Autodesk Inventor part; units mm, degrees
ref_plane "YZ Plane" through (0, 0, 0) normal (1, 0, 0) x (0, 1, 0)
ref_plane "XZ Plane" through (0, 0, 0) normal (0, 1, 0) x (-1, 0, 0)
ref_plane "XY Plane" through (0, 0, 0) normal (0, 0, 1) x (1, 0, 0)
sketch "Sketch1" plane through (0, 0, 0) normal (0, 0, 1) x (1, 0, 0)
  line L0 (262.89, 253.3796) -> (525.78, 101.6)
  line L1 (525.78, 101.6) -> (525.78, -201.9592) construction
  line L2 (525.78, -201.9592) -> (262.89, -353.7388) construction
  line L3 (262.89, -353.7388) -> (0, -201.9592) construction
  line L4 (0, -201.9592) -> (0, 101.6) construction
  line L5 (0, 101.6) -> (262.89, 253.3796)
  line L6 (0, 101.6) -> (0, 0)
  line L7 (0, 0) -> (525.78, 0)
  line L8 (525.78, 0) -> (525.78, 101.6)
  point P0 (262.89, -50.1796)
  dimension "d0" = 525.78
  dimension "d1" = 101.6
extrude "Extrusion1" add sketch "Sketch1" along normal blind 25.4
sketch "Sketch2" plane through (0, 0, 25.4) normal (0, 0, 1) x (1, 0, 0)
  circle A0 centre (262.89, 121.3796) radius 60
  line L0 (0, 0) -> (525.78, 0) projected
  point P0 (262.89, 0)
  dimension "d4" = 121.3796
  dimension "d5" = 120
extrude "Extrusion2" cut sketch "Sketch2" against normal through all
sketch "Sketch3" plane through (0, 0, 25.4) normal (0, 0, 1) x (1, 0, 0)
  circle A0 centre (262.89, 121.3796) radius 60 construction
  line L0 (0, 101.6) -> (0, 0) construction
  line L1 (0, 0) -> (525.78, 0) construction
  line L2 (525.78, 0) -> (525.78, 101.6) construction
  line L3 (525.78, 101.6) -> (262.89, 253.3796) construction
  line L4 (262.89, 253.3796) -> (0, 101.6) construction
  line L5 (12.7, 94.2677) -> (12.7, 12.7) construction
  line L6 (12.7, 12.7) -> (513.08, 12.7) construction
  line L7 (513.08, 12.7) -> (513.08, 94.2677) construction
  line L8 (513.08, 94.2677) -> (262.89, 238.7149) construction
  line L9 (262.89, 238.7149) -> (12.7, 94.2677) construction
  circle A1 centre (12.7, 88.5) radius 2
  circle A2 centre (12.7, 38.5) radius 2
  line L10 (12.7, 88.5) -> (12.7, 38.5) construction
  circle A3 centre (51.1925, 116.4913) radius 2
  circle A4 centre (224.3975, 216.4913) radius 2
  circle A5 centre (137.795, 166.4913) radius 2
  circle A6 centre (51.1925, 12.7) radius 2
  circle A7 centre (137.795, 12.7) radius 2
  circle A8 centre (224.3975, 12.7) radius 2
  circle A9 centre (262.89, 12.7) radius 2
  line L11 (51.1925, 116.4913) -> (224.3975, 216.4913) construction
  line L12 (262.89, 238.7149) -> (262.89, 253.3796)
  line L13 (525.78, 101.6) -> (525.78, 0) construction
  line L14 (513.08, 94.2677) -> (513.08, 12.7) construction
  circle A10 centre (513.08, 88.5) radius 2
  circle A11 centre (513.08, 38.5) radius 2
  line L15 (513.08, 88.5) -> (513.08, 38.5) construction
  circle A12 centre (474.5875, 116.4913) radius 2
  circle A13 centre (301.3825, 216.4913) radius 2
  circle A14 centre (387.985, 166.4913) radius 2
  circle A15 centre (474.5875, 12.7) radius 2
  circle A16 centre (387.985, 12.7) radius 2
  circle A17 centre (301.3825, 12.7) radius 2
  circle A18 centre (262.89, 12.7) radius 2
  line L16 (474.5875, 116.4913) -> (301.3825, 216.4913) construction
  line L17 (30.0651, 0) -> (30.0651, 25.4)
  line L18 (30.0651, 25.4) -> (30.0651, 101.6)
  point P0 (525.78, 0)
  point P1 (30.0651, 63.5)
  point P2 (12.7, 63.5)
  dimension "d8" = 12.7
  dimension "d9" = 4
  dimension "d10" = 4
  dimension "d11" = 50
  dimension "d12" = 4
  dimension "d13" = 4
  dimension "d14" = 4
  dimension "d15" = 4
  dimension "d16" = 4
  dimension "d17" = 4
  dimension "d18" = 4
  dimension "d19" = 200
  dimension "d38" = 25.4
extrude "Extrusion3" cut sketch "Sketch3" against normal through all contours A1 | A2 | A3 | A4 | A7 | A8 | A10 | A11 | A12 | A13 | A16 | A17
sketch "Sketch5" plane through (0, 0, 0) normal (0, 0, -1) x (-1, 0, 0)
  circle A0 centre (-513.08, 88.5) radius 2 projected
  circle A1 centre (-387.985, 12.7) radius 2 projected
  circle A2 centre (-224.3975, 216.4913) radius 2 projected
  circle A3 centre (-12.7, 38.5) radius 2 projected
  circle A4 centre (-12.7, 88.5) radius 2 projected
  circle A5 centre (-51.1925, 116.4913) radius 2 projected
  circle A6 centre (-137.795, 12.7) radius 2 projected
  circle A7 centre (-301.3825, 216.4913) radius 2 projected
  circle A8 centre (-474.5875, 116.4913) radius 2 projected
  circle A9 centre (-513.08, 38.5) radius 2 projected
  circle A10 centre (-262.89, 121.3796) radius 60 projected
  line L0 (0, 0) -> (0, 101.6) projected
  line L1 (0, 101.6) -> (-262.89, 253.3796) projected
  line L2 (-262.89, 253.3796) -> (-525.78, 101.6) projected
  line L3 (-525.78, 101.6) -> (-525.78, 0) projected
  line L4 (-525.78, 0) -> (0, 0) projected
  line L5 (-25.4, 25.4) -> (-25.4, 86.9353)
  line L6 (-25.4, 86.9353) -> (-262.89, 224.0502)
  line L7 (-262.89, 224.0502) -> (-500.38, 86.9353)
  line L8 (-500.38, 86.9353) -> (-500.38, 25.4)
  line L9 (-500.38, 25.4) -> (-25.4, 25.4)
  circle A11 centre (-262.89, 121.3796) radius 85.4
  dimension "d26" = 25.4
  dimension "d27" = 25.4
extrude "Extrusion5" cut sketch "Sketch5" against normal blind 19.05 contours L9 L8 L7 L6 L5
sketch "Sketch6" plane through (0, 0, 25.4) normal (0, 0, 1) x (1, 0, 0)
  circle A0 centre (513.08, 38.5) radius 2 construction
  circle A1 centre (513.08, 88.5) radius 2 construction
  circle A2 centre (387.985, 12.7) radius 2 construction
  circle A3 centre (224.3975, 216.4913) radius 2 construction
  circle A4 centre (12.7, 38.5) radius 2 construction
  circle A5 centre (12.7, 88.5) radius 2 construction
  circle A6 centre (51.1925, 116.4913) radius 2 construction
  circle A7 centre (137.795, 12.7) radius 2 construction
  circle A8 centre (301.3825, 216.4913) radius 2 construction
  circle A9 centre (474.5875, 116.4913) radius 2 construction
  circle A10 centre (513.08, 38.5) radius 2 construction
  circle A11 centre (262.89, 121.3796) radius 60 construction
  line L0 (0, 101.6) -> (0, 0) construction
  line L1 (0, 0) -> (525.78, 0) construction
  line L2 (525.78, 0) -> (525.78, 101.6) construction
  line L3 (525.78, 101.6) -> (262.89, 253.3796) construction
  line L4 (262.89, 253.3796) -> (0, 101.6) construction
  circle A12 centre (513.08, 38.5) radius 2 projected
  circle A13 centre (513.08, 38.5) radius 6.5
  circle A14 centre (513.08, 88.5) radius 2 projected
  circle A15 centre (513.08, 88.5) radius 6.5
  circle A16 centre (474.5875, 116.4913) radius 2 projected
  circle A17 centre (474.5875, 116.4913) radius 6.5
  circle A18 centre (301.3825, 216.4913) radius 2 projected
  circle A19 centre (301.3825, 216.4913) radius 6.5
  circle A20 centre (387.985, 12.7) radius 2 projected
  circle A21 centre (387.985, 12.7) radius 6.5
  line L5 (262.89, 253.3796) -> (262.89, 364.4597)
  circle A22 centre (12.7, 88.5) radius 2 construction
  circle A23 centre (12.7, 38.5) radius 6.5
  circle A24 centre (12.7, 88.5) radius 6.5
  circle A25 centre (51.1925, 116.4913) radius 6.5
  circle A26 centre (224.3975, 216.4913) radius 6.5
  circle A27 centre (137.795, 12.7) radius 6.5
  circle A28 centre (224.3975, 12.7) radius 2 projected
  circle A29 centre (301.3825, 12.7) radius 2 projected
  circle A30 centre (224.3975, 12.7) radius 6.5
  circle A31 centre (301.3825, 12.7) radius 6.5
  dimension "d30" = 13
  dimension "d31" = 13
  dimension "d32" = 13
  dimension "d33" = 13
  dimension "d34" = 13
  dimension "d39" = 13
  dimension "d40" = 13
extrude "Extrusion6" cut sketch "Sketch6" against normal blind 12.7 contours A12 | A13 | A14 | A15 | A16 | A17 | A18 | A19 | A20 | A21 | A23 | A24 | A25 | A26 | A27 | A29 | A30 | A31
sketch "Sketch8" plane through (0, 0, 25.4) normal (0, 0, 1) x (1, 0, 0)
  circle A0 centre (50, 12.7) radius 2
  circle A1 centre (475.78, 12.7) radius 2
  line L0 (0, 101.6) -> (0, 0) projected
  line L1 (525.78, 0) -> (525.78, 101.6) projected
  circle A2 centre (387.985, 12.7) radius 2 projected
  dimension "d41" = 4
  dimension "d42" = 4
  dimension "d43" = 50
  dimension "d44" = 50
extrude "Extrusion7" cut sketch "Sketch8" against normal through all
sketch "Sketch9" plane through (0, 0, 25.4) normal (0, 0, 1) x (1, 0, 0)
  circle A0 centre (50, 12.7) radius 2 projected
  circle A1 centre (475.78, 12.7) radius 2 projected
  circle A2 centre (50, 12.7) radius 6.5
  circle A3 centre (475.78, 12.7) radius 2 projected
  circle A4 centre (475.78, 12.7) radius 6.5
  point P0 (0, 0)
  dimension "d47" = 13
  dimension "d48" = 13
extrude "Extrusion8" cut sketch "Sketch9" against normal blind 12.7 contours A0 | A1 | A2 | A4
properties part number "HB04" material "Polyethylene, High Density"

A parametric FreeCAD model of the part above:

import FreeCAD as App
import Part
import Sketcher

V = App.Vector
Q = App.Units.Quantity

doc = App.newDocument("Part")
params = doc.addObject("Spreadsheet::Sheet", "Params")
for row, (alias, value) in enumerate([
    ("sketch1_height", "4 in"),
    ("sketch1_width", "20.7 in"),
    ("pad1_length", "1 in"),
    ("sketch4_width", "18.7 in"),
    ("pocket3_length", "0.75 in"),
    ("pocket4_length", "0.5 in"),
    ("pocket6_length", "0.5 in"),
], start=1):
    params.set(f"A{row}", alias)
    params.set(f"B{row}", "=" + value)
    params.setAlias(f"B{row}", alias)

body = doc.addObject("PartDesign::Body", "Body")

sketch1 = body.newObject("Sketcher::SketchObject", "Sketch")
sketch1.AttachmentSupport = (doc.getObject("XY_Plane"), [""])
sketch1.MapMode = "FlatFace"
sketch1.addGeometry(Part.LineSegment(V(526, 102, 0), V(263, 253, 0)), False)
sketch1.addGeometry(Part.LineSegment(V(263, 253, 0), V(0, 102, 0)), False)
sketch1.addGeometry(Part.LineSegment(V(0, 102, 0), V(0, 0, 0)), False)
sketch1.addGeometry(Part.LineSegment(V(0, 0, 0), V(526, 0, 0)), False)
sketch1.addGeometry(Part.LineSegment(V(526, 0, 0), V(526, 102, 0)), False)
sketch1.addConstraint(Sketcher.Constraint("Coincident", 0, 2, 1, 1))
sketch1.addConstraint(Sketcher.Constraint("Coincident", 1, 2, 2, 1))
sketch1.addConstraint(Sketcher.Constraint("Coincident", 2, 2, 3, 1))
sketch1.addConstraint(Sketcher.Constraint("Coincident", 3, 2, 4, 1))
sketch1.addConstraint(Sketcher.Constraint("Coincident", 4, 2, 0, 1))
sketch1.addConstraint(Sketcher.Constraint("Vertical", 2))
sketch1.addConstraint(Sketcher.Constraint("Horizontal", 3))
sketch1.addConstraint(Sketcher.Constraint("Vertical", 4))
sketch1.addConstraint(Sketcher.Constraint("Coincident", 2, 2, -1, 1))
sketch1.addConstraint(Sketcher.Constraint("Horizontal", 1, 2, 4, 2))
sketch1.addConstraint(Sketcher.Constraint("Equal", 0, 1))
sketch1.addConstraint(Sketcher.Constraint("DistanceY", 2, 2, 2, 1, Q("4 in")))
sketch1.addConstraint(Sketcher.Constraint("DistanceX", 3, 1, 3, 2, Q("20.7 in")))
sketch1.addConstraint(Sketcher.Constraint("Angle", 0, Q("150 deg")))
sketch1.setExpression("Constraints[11]", "Params.sketch1_height")
sketch1.setExpression("Constraints[12]", "Params.sketch1_width")
pad1 = body.newObject("PartDesign::Pad", "Pad")
pad1.Profile = sketch1
pad1.setExpression("Length", "Params.pad1_length")

sketch2 = body.newObject("Sketcher::SketchObject", "Sketch001")
sketch2.AttachmentSupport = (doc.getObject("XY_Plane"), [""])
sketch2.MapMode = "FlatFace"
sketch2.AttachmentOffset = App.Placement(V(0, 0, 1 * 25.4), App.Rotation())
sketch2.addGeometry(Part.Circle(V(263, 121, 0), V(0, 0, 1), 60), False)
sketch2.addConstraint(Sketcher.Constraint("Diameter", 0, Q("4.7244 in")))
sketch2.addConstraint(Sketcher.Constraint("DistanceX", -1, 1, 0, 3, Q("10.35 in")))
sketch2.addConstraint(Sketcher.Constraint("DistanceY", -1, 1, 0, 3, 121.3796))
pocket1 = body.newObject("PartDesign::Pocket", "Pocket")
pocket1.Profile = sketch2
pocket1.Type = "ThroughAll"

sketch3 = body.newObject("Sketcher::SketchObject", "Sketch002")
sketch3.AttachmentSupport = (doc.getObject("XY_Plane"), [""])
sketch3.MapMode = "FlatFace"
sketch3.AttachmentOffset = App.Placement(V(0, 0, 1 * 25.4), App.Rotation())
sketch3.addGeometry(Part.Circle(V(12.7, 88.5, 0), V(0, 0, 1), 2), False)
sketch3.addGeometry(Part.Circle(V(12.7, 38.5, 0), V(0, 0, 1), 2), False)
sketch3.addGeometry(Part.Circle(V(51.2, 116.5, 0), V(0, 0, 1), 2), False)
sketch3.addGeometry(Part.Circle(V(224.4, 216.5, 0), V(0, 0, 1), 2), False)
sketch3.addGeometry(Part.Circle(V(137.8, 12.7, 0), V(0, 0, 1), 2), False)
sketch3.addGeometry(Part.Circle(V(224.4, 12.7, 0), V(0, 0, 1), 2), False)
sketch3.addGeometry(Part.Circle(V(513.1, 88.5, 0), V(0, 0, 1), 2), False)
sketch3.addGeometry(Part.Circle(V(513.1, 38.5, 0), V(0, 0, 1), 2), False)
sketch3.addGeometry(Part.Circle(V(474.6, 116.5, 0), V(0, 0, 1), 2), False)
sketch3.addGeometry(Part.Circle(V(301.4, 216.5, 0), V(0, 0, 1), 2), False)
sketch3.addGeometry(Part.Circle(V(388, 12.7, 0), V(0, 0, 1), 2), False)
sketch3.addGeometry(Part.Circle(V(301.4, 12.7, 0), V(0, 0, 1), 2), False)
sketch3.addConstraint(Sketcher.Constraint("Equal", 0, 1))
sketch3.addConstraint(Sketcher.Constraint("Equal", 1, 2))
sketch3.addConstraint(Sketcher.Constraint("Equal", 2, 3))
sketch3.addConstraint(Sketcher.Constraint("Equal", 3, 4))
sketch3.addConstraint(Sketcher.Constraint("Equal", 4, 5))
sketch3.addConstraint(Sketcher.Constraint("Equal", 5, 6))
sketch3.addConstraint(Sketcher.Constraint("Equal", 6, 7))
sketch3.addConstraint(Sketcher.Constraint("Equal", 7, 8))
sketch3.addConstraint(Sketcher.Constraint("Equal", 8, 9))
sketch3.addConstraint(Sketcher.Constraint("Equal", 9, 10))
sketch3.addConstraint(Sketcher.Constraint("Equal", 10, 11))
sketch3.addConstraint(Sketcher.Constraint("Horizontal", 4, 3, 5, 3))
sketch3.addConstraint(Sketcher.Constraint("Horizontal", 0, 3, 6, 3))
sketch3.addConstraint(Sketcher.Constraint("Horizontal", 1, 3, 7, 3))
sketch3.addConstraint(Sketcher.Constraint("Horizontal", 2, 3, 8, 3))
sketch3.addConstraint(Sketcher.Constraint("Horizontal", 3, 3, 9, 3))
sketch3.addConstraint(Sketcher.Constraint("Horizontal", 5, 3, 10, 3))
sketch3.addConstraint(Sketcher.Constraint("Horizontal", 10, 3, 11, 3))
sketch3.addConstraint(Sketcher.Constraint("Vertical", 0, 3, 1, 3))
sketch3.addConstraint(Sketcher.Constraint("Vertical", 3, 3, 5, 3))
sketch3.addConstraint(Sketcher.Constraint("Vertical", 6, 3, 7, 3))
sketch3.addConstraint(Sketcher.Constraint("Vertical", 9, 3, 11, 3))
sketch3.addConstraint(Sketcher.Constraint("DistanceX", -1, 1, 0, 3, Q("0.5 in")))
sketch3.addConstraint(Sketcher.Constraint("DistanceY", -1, 1, 4, 3, Q("0.5 in")))
sketch3.addConstraint(Sketcher.Constraint("Diameter", 0, 4.0))
sketch3.addConstraint(Sketcher.Constraint("DistanceX", -1, 1, 6, 3, Q("20.2 in")))
sketch3.addConstraint(Sketcher.Constraint("DistanceY", 1, 3, 0, 3, Q("1.9685 in")))
sketch3.addConstraint(Sketcher.Constraint("DistanceX", 3, 3, 8, 3, Q("9.85 in")))
sketch3.addConstraint(Sketcher.Constraint("DistanceX", -1, 1, 4, 3, Q("5.425 in")))
sketch3.addConstraint(Sketcher.Constraint("DistanceX", -1, 1, 10, 3, Q("15.275 in")))
sketch3.addConstraint(Sketcher.Constraint("DistanceY", 2, 3, 3, 3, Q("3.937 in")))
sketch3.addConstraint(Sketcher.Constraint("DistanceX", 2, 3, 3, 3, Q("6.8191 in")))
sketch3.addConstraint(Sketcher.Constraint("DistanceX", 3, 3, 9, 3, Q("3.0309 in")))
sketch3.addConstraint(Sketcher.Constraint("DistanceY", -1, 1, 0, 3, 88.5))
sketch3.addConstraint(Sketcher.Constraint("DistanceX", -1, 1, 2, 3, 51.1925))
sketch3.addConstraint(Sketcher.Constraint("DistanceY", -1, 1, 2, 3, 116.4913))
pocket2 = body.newObject("PartDesign::Pocket", "Pocket001")
pocket2.Profile = sketch3
pocket2.Type = "ThroughAll"

sketch4 = body.newObject("Sketcher::SketchObject", "Sketch003")
sketch4.AttachmentSupport = (doc.getObject("XY_Plane"), [""])
sketch4.MapMode = "FlatFace"
sketch4.addGeometry(Part.LineSegment(V(500, 25, 0), V(25, 25, 0)), False)
sketch4.addGeometry(Part.LineSegment(V(25, 25, 0), V(25, 87, 0)), False)
sketch4.addGeometry(Part.LineSegment(V(25, 87, 0), V(263, 224, 0)), False)
sketch4.addGeometry(Part.LineSegment(V(263, 224, 0), V(500, 87, 0)), False)
sketch4.addGeometry(Part.LineSegment(V(500, 87, 0), V(500, 25, 0)), False)
sketch4.addGeometry(Part.Circle(V(263, 121, 0), V(0, 0, 1), 85), False)
sketch4.addConstraint(Sketcher.Constraint("Coincident", 0, 2, 1, 1))
sketch4.addConstraint(Sketcher.Constraint("Coincident", 1, 2, 2, 1))
sketch4.addConstraint(Sketcher.Constraint("Coincident", 2, 2, 3, 1))
sketch4.addConstraint(Sketcher.Constraint("Coincident", 3, 2, 4, 1))
sketch4.addConstraint(Sketcher.Constraint("Coincident", 4, 2, 0, 1))
sketch4.addConstraint(Sketcher.Constraint("Horizontal", 0))
sketch4.addConstraint(Sketcher.Constraint("Vertical", 1))
sketch4.addConstraint(Sketcher.Constraint("Vertical", 4))
sketch4.addConstraint(Sketcher.Constraint("Horizontal", 1, 2, 3, 2))
sketch4.addConstraint(Sketcher.Constraint("Vertical", 5, 3, 2, 2))
sketch4.addConstraint(Sketcher.Constraint("Equal", 2, 3))
sketch4.addConstraint(Sketcher.Constraint("DistanceX", -1, 1, 0, 2, Q("1 in")))
sketch4.addConstraint(Sketcher.Constraint("DistanceY", -1, 1, 0, 2, Q("1 in")))
sketch4.addConstraint(Sketcher.Constraint("DistanceX", 0, 2, 0, 1, Q("18.7 in")))
sketch4.addConstraint(Sketcher.Constraint("Angle", 2, Q("30 deg")))
sketch4.addConstraint(Sketcher.Constraint("Diameter", 5, Q("6.7244 in")))
sketch4.addConstraint(Sketcher.Constraint("DistanceY", 1, 1, 1, 2, 61.5353))
sketch4.addConstraint(Sketcher.Constraint("DistanceY", -1, 1, 5, 3, 121.3796))
sketch4.setExpression("Constraints[13]", "Params.sketch4_width")
pocket3 = body.newObject("PartDesign::Pocket", "Pocket002")
pocket3.Profile = sketch4
pocket3.setExpression("Length", "Params.pocket3_length")
pocket3.Reversed = True

sketch5 = body.newObject("Sketcher::SketchObject", "Sketch004")
sketch5.AttachmentSupport = (doc.getObject("XY_Plane"), [""])
sketch5.MapMode = "FlatFace"
sketch5.AttachmentOffset = App.Placement(V(0, 0, 1 * 25.4), App.Rotation())
sketch5.addGeometry(Part.Circle(V(513.1, 38.5, 0), V(0, 0, 1), 6.5), False)
sketch5.addGeometry(Part.Circle(V(513.1, 88.5, 0), V(0, 0, 1), 6.5), False)
sketch5.addGeometry(Part.Circle(V(474.6, 116.5, 0), V(0, 0, 1), 6.5), False)
sketch5.addGeometry(Part.Circle(V(301.4, 216.5, 0), V(0, 0, 1), 6.5), False)
sketch5.addGeometry(Part.Circle(V(388, 12.7, 0), V(0, 0, 1), 6.5), False)
sketch5.addGeometry(Part.Circle(V(12.7, 38.5, 0), V(0, 0, 1), 6.5), False)
sketch5.addGeometry(Part.Circle(V(12.7, 88.5, 0), V(0, 0, 1), 6.5), False)
sketch5.addGeometry(Part.Circle(V(51.2, 116.5, 0), V(0, 0, 1), 6.5), False)
sketch5.addGeometry(Part.Circle(V(224.4, 216.5, 0), V(0, 0, 1), 6.5), False)
sketch5.addGeometry(Part.Circle(V(137.8, 12.7, 0), V(0, 0, 1), 6.5), False)
sketch5.addGeometry(Part.Circle(V(301.4, 12.7, 0), V(0, 0, 1), 6.5), False)
sketch5.addGeometry(Part.Circle(V(224.4, 12.7, 0), V(0, 0, 1), 6.5), False)
sketch5.addGeometry(Part.Circle(V(224.4, 12.7, 0), V(0, 0, 1), 2), False)
sketch5.addConstraint(Sketcher.Constraint("Coincident", 12, 3, 11, 3))
sketch5.addConstraint(Sketcher.Constraint("Equal", 0, 1))
sketch5.addConstraint(Sketcher.Constraint("Equal", 1, 2))
sketch5.addConstraint(Sketcher.Constraint("Equal", 2, 3))
sketch5.addConstraint(Sketcher.Constraint("Equal", 3, 4))
sketch5.addConstraint(Sketcher.Constraint("Equal", 4, 5))
sketch5.addConstraint(Sketcher.Constraint("Equal", 5, 6))
sketch5.addConstraint(Sketcher.Constraint("Equal", 6, 7))
sketch5.addConstraint(Sketcher.Constraint("Equal", 7, 8))
sketch5.addConstraint(Sketcher.Constraint("Equal", 8, 9))
sketch5.addConstraint(Sketcher.Constraint("Equal", 9, 10))
sketch5.addConstraint(Sketcher.Constraint("Equal", 10, 11))
sketch5.addConstraint(Sketcher.Constraint("Horizontal", 0, 3, 5, 3))
sketch5.addConstraint(Sketcher.Constraint("Horizontal", 1, 3, 6, 3))
sketch5.addConstraint(Sketcher.Constraint("Horizontal", 2, 3, 7, 3))
sketch5.addConstraint(Sketcher.Constraint("Horizontal", 3, 3, 8, 3))
sketch5.addConstraint(Sketcher.Constraint("Horizontal", 4, 3, 9, 3))
sketch5.addConstraint(Sketcher.Constraint("Horizontal", 9, 3, 10, 3))
sketch5.addConstraint(Sketcher.Constraint("Horizontal", 10, 3, 11, 3))
sketch5.addConstraint(Sketcher.Constraint("Vertical", 0, 3, 1, 3))
sketch5.addConstraint(Sketcher.Constraint("Vertical", 5, 3, 6, 3))
sketch5.addConstraint(Sketcher.Constraint("Vertical", 3, 3, 10, 3))
sketch5.addConstraint(Sketcher.Constraint("Vertical", 8, 3, 11, 3))
sketch5.addConstraint(Sketcher.Constraint("Diameter", 0, Q("0.5118 in")))
sketch5.addConstraint(Sketcher.Constraint("DistanceX", -1, 1, 0, 3, Q("20.2 in")))
sketch5.addConstraint(Sketcher.Constraint("DistanceY", -1, 1, 4, 3, Q("0.5 in")))
sketch5.addConstraint(Sketcher.Constraint("DistanceX", -1, 1, 5, 3, Q("0.5 in")))
sketch5.addConstraint(Sketcher.Constraint("Diameter", 12, 4.0))
sketch5.addConstraint(Sketcher.Constraint("DistanceX", 7, 3, 3, 3, Q("9.85 in")))
sketch5.addConstraint(Sketcher.Constraint("DistanceX", 8, 3, 2, 3, Q("9.85 in")))
sketch5.addConstraint(Sketcher.Constraint("DistanceX", 9, 3, 4, 3, Q("9.85 in")))
sketch5.addConstraint(Sketcher.Constraint("DistanceX", -1, 1, 4, 3, Q("15.275 in")))
sketch5.addConstraint(Sketcher.Constraint("DistanceY", 2, 3, 3, 3, Q("3.937 in")))
sketch5.addConstraint(Sketcher.Constraint("DistanceY", 0, 3, 1, 3, Q("1.9685 in")))
sketch5.addConstraint(Sketcher.Constraint("DistanceX", 3, 3, 2, 3, Q("6.8191 in")))
sketch5.addConstraint(Sketcher.Constraint("DistanceY", -1, 1, 0, 3, 38.5))
sketch5.addConstraint(Sketcher.Constraint("DistanceX", -1, 1, 2, 3, 474.5875))
sketch5.addConstraint(Sketcher.Constraint("DistanceY", -1, 1, 2, 3, 116.4913))
pocket4 = body.newObject("PartDesign::Pocket", "Pocket003")
pocket4.Profile = sketch5
pocket4.setExpression("Length", "Params.pocket4_length")

sketch6 = body.newObject("Sketcher::SketchObject", "Sketch005")
sketch6.AttachmentSupport = (doc.getObject("XY_Plane"), [""])
sketch6.MapMode = "FlatFace"
sketch6.AttachmentOffset = App.Placement(V(0, 0, 1 * 25.4), App.Rotation())
sketch6.addGeometry(Part.Circle(V(50, 12.7, 0), V(0, 0, 1), 2), False)
sketch6.addGeometry(Part.Circle(V(475.8, 12.7, 0), V(0, 0, 1), 2), False)
sketch6.addGeometry(Part.Circle(V(388, 12.7, 0), V(0, 0, 1), 2), False)
sketch6.addConstraint(Sketcher.Constraint("Equal", 0, 1))
sketch6.addConstraint(Sketcher.Constraint("Equal", 1, 2))
sketch6.addConstraint(Sketcher.Constraint("Horizontal", 0, 3, 1, 3))
sketch6.addConstraint(Sketcher.Constraint("Horizontal", 1, 3, 2, 3))
sketch6.addConstraint(Sketcher.Constraint("Diameter", 0, 4.0))
sketch6.addConstraint(Sketcher.Constraint("DistanceX", -1, 1, 0, 3, Q("1.9685 in")))
sketch6.addConstraint(Sketcher.Constraint("DistanceY", -1, 1, 0, 3, Q("0.5 in")))
sketch6.addConstraint(Sketcher.Constraint("DistanceX", -1, 1, 2, 3, Q("15.275 in")))
sketch6.addConstraint(Sketcher.Constraint("DistanceX", 0, 3, 1, 3, Q("16.763 in")))
pocket5 = body.newObject("PartDesign::Pocket", "Pocket004")
pocket5.Profile = sketch6
pocket5.Type = "ThroughAll"

sketch7 = body.newObject("Sketcher::SketchObject", "Sketch006")
sketch7.AttachmentSupport = (doc.getObject("XY_Plane"), [""])
sketch7.MapMode = "FlatFace"
sketch7.AttachmentOffset = App.Placement(V(0, 0, 1 * 25.4), App.Rotation())
sketch7.addGeometry(Part.Circle(V(50, 13, 0), V(0, 0, 1), 6), False)
sketch7.addGeometry(Part.Circle(V(476, 13, 0), V(0, 0, 1), 6), False)
sketch7.addConstraint(Sketcher.Constraint("Equal", 0, 1))
sketch7.addConstraint(Sketcher.Constraint("Horizontal", 0, 3, 1, 3))
sketch7.addConstraint(Sketcher.Constraint("Diameter", 0, Q("0.5118 in")))
sketch7.addConstraint(Sketcher.Constraint("DistanceY", -1, 1, 0, 3, Q("0.5 in")))
sketch7.addConstraint(Sketcher.Constraint("DistanceX", 0, 3, 1, 3, Q("16.763 in")))
sketch7.addConstraint(Sketcher.Constraint("DistanceX", -1, 1, 0, 3, Q("1.9685 in")))
pocket6 = body.newObject("PartDesign::Pocket", "Pocket005")
pocket6.Profile = sketch7
pocket6.setExpression("Length", "Params.pocket6_length")

doc.recompute()
